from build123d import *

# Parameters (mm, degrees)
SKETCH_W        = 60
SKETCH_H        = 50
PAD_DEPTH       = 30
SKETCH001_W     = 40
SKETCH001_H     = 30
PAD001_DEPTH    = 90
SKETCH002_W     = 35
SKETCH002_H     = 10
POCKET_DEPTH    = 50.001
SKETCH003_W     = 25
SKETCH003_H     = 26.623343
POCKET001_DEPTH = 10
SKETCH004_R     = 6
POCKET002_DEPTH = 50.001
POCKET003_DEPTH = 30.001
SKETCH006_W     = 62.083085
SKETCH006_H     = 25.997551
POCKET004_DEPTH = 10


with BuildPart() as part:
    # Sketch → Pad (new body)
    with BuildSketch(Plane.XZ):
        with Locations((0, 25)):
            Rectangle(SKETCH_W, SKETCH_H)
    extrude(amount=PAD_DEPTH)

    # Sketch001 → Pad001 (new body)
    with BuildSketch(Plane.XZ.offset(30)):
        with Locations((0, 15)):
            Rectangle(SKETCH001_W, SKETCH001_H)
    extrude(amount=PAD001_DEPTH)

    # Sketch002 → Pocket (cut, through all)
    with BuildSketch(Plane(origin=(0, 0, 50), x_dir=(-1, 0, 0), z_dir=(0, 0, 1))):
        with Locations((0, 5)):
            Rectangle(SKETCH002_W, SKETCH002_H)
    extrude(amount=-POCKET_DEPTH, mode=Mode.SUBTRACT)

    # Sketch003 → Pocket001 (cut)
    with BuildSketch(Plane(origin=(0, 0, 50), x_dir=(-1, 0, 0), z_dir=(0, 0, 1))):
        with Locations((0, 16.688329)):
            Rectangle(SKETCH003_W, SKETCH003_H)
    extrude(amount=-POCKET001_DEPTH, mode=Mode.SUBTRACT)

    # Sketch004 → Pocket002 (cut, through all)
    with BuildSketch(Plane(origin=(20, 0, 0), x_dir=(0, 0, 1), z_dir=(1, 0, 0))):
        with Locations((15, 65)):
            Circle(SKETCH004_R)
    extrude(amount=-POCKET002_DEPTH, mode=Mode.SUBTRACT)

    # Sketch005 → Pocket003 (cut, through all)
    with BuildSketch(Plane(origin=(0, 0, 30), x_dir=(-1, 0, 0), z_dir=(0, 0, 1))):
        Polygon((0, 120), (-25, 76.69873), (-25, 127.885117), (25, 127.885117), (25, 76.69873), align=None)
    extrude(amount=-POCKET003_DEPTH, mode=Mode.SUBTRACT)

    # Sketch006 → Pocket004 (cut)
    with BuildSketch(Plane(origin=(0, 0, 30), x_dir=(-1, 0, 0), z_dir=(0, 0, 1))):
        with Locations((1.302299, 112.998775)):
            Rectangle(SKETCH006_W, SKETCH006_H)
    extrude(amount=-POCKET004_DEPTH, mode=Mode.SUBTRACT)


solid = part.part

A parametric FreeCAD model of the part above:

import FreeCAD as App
import Part
import Sketcher
from FreeCAD import Vector
Q = App.Units.Quantity


def add_polygon(sketch, points):
    """Adds a closed chain of lines whose ends are joined by coincident constraints."""
    first, n = sketch.GeometryCount, len(points)
    for a, b in zip(points, points[1:] + points[:1]):
        sketch.addGeometry(Part.LineSegment(App.Vector(*a, 0), App.Vector(*b, 0)), False)
    for i in range(n):
        sketch.addConstraint(Sketcher.Constraint("Coincident", first + i, 2, first + (i + 1) % n, 1))

doc = App.newDocument("Part")
body = doc.addObject("PartDesign::Body", "Body")

# Sketch on XZ plane
sketch1 = body.newObject("Sketcher::SketchObject", "Sketch")
sketch1.AttachmentSupport = (doc.getObject("XZ_Plane"), [""])
sketch1.MapMode = "FlatFace"
add_polygon(sketch1, [(-30, 50), (-30, 0), (30, 0), (30, 50)])  # lines 0-3
sketch1.addConstraint(Sketcher.Constraint("Vertical", 0))
sketch1.addConstraint(Sketcher.Constraint("Horizontal", 1))
sketch1.addConstraint(Sketcher.Constraint("Vertical", 2))
sketch1.addConstraint(Sketcher.Constraint("Horizontal", 3))
sketch1.addConstraint(Sketcher.Constraint("Symmetric", 0, 2, 1, 2, -1, 1))
sketch1.addConstraint(Sketcher.Constraint("DistanceX", 1, 1, 1, 2, Q("60 mm")))
sketch1.addConstraint(Sketcher.Constraint("DistanceY", 0, 2, 0, 1, Q("50 mm")))
pad1 = body.newObject("PartDesign::Pad", "Pad")
pad1.Profile = sketch1
pad1.Length = 30

# Sketch on XZ plane
sketch2 = body.newObject("Sketcher::SketchObject", "Sketch001")
sketch2.AttachmentSupport = (doc.getObject("XZ_Plane"), [""])
sketch2.MapMode = "FlatFace"
sketch2.AttachmentOffset = App.Placement(Vector(0, 0, 30), App.Rotation())
add_polygon(sketch2, [(-20, 30), (-20, 0), (20, 0), (20, 30)])  # lines 0-3
sketch2.addConstraint(Sketcher.Constraint("Vertical", 0))
sketch2.addConstraint(Sketcher.Constraint("Horizontal", 1))
sketch2.addConstraint(Sketcher.Constraint("Vertical", 2))
sketch2.addConstraint(Sketcher.Constraint("Horizontal", 3))
sketch2.addConstraint(Sketcher.Constraint("Symmetric", 0, 2, 1, 2, -1, 1))
sketch2.addConstraint(Sketcher.Constraint("DistanceX", 1, 1, 1, 2, Q("40 mm")))
sketch2.addConstraint(Sketcher.Constraint("DistanceY", 0, 2, 0, 1, Q("30 mm")))
pad2 = body.newObject("PartDesign::Pad", "Pad001")
pad2.Profile = sketch2
pad2.Length = 90

# Sketch on XY plane
sketch3 = body.newObject("Sketcher::SketchObject", "Sketch002")
sketch3.AttachmentSupport = (doc.getObject("XY_Plane"), [""])
sketch3.MapMode = "FlatFace"
sketch3.AttachmentOffset = App.Placement(Vector(0, 0, 50), App.Rotation())
add_polygon(sketch3, [(18, -10), (18, 0), (-18, 0), (-18, -10)])  # lines 0-3
sketch3.addConstraint(Sketcher.Constraint("Vertical", 0))
sketch3.addConstraint(Sketcher.Constraint("Horizontal", 1))
sketch3.addConstraint(Sketcher.Constraint("Vertical", 2))
sketch3.addConstraint(Sketcher.Constraint("Horizontal", 3))
sketch3.addConstraint(Sketcher.Constraint("Symmetric", 0, 2, 1, 2, -1, 1))
sketch3.addConstraint(Sketcher.Constraint("DistanceX", 1, 2, 1, 1, Q("35 mm")))
sketch3.addConstraint(Sketcher.Constraint("DistanceY", 0, 1, 0, 2, Q("10 mm")))
pocket1 = body.newObject("PartDesign::Pocket", "Pocket")
pocket1.Profile = sketch3
pocket1.Type = "ThroughAll"

# Sketch on XY plane
sketch4 = body.newObject("Sketcher::SketchObject", "Sketch003")
sketch4.AttachmentSupport = (doc.getObject("XY_Plane"), [""])
sketch4.MapMode = "FlatFace"
sketch4.AttachmentOffset = App.Placement(Vector(0, 0, 50), App.Rotation())
add_polygon(sketch4, [(12, -30), (12, -3), (-12, -3), (-12, -30)])  # lines 0-3
sketch4.addConstraint(Sketcher.Constraint("Vertical", 0))
sketch4.addConstraint(Sketcher.Constraint("Horizontal", 1))
sketch4.addConstraint(Sketcher.Constraint("Vertical", 2))
sketch4.addConstraint(Sketcher.Constraint("Horizontal", 3))
sketch4.addConstraint(Sketcher.Constraint("DistanceX", 1, 2, 1, 1, Q("25 mm")))
sketch4.addConstraint(Sketcher.Constraint("DistanceY", 2, 2, -1, 1, Q("30 mm")))
sketch4.addConstraint(Sketcher.Constraint("DistanceX", -1, 1, 0, 2, Q("12.5 mm")))
sketch4.addConstraint(Sketcher.Constraint("DistanceY", 0, 1, 0, 2, Q("26.623343 mm")))
pocket2 = body.newObject("PartDesign::Pocket", "Pocket001")
pocket2.Profile = sketch4
pocket2.Length = 10

# Sketch on YZ plane
sketch5 = body.newObject("Sketcher::SketchObject", "Sketch004")
sketch5.AttachmentSupport = (doc.getObject("YZ_Plane"), [""])
sketch5.MapMode = "FlatFace"
sketch5.AttachmentOffset = App.Placement(Vector(0, 0, 20), App.Rotation())
sketch5.addGeometry(Part.Circle(Vector(-65, 15, 0), Vector(0, 0, 1), 6), False)
sketch5.addConstraint(Sketcher.Constraint("Diameter", 0, Q("12 mm")))
sketch5.addConstraint(Sketcher.Constraint("DistanceX", 0, 3, -1, 1, Q("65 mm")))
sketch5.addConstraint(Sketcher.Constraint("DistanceY", -1, 1, 0, 3, Q("15 mm")))
pocket3 = body.newObject("PartDesign::Pocket", "Pocket002")
pocket3.Profile = sketch5
pocket3.Type = "ThroughAll"

# Sketch on XY plane
sketch6 = body.newObject("Sketcher::SketchObject", "Sketch005")
sketch6.AttachmentSupport = (doc.getObject("XY_Plane"), [""])
sketch6.MapMode = "FlatFace"
sketch6.AttachmentOffset = App.Placement(Vector(0, 0, 30), App.Rotation())
add_polygon(sketch6, [(25, -77), (0, -120), (-25, -77), (-25, -128), (25, -128)])  # lines 0-4
sketch6.addConstraint(Sketcher.Constraint("Vertical", 2))
sketch6.addConstraint(Sketcher.Constraint("Horizontal", 3))
sketch6.addConstraint(Sketcher.Constraint("Vertical", 4))
sketch6.addConstraint(Sketcher.Constraint("Symmetric", 1, 2, 4, 2, -2))
sketch6.addConstraint(Sketcher.Constraint("PointOnObject", 0, 2, -2))
sketch6.addConstraint(Sketcher.Constraint("DistanceX", 3, 1, 3, 2, Q("50 mm")))
sketch6.addConstraint(Sketcher.Constraint("Angle", 0, Q("-120 deg")))
sketch6.addConstraint(Sketcher.Constraint("DistanceY", 0, 2, -1, 1, Q("120 mm")))
sketch6.addConstraint(Sketcher.Constraint("DistanceY", 2, 2, 2, 1, Q("51.186387 mm")))
pocket4 = body.newObject("PartDesign::Pocket", "Pocket003")
pocket4.Profile = sketch6
pocket4.Type = "ThroughAll"

# Sketch on XY plane
sketch7 = body.newObject("Sketcher::SketchObject", "Sketch006")
sketch7.AttachmentSupport = (doc.getObject("XY_Plane"), [""])
sketch7.MapMode = "FlatFace"
sketch7.AttachmentOffset = App.Placement(Vector(0, 0, 30), App.Rotation())
add_polygon(sketch7, [(30, -126), (30, -100), (-32, -100), (-32, -126)])  # lines 0-3
sketch7.addConstraint(Sketcher.Constraint("Vertical", 0))
sketch7.addConstraint(Sketcher.Constraint("Horizontal", 1))
sketch7.addConstraint(Sketcher.Constraint("Vertical", 2))
sketch7.addConstraint(Sketcher.Constraint("Horizontal", 3))
sketch7.addConstraint(Sketcher.Constraint("DistanceY", 0, 2, -1, 1, Q("100 mm")))
sketch7.addConstraint(Sketcher.Constraint("DistanceY", 0, 1, 0, 2, Q("25.997551 mm")))
sketch7.addConstraint(Sketcher.Constraint("DistanceX", 1, 2, 1, 1, Q("62.083085 mm")))
sketch7.addConstraint(Sketcher.Constraint("DistanceX", 1, 2, -1, 1, Q("32.343842 mm")))
pocket5 = body.newObject("PartDesign::Pocket", "Pocket004")
pocket5.Profile = sketch7
pocket5.Length = 10

doc.recompute()
